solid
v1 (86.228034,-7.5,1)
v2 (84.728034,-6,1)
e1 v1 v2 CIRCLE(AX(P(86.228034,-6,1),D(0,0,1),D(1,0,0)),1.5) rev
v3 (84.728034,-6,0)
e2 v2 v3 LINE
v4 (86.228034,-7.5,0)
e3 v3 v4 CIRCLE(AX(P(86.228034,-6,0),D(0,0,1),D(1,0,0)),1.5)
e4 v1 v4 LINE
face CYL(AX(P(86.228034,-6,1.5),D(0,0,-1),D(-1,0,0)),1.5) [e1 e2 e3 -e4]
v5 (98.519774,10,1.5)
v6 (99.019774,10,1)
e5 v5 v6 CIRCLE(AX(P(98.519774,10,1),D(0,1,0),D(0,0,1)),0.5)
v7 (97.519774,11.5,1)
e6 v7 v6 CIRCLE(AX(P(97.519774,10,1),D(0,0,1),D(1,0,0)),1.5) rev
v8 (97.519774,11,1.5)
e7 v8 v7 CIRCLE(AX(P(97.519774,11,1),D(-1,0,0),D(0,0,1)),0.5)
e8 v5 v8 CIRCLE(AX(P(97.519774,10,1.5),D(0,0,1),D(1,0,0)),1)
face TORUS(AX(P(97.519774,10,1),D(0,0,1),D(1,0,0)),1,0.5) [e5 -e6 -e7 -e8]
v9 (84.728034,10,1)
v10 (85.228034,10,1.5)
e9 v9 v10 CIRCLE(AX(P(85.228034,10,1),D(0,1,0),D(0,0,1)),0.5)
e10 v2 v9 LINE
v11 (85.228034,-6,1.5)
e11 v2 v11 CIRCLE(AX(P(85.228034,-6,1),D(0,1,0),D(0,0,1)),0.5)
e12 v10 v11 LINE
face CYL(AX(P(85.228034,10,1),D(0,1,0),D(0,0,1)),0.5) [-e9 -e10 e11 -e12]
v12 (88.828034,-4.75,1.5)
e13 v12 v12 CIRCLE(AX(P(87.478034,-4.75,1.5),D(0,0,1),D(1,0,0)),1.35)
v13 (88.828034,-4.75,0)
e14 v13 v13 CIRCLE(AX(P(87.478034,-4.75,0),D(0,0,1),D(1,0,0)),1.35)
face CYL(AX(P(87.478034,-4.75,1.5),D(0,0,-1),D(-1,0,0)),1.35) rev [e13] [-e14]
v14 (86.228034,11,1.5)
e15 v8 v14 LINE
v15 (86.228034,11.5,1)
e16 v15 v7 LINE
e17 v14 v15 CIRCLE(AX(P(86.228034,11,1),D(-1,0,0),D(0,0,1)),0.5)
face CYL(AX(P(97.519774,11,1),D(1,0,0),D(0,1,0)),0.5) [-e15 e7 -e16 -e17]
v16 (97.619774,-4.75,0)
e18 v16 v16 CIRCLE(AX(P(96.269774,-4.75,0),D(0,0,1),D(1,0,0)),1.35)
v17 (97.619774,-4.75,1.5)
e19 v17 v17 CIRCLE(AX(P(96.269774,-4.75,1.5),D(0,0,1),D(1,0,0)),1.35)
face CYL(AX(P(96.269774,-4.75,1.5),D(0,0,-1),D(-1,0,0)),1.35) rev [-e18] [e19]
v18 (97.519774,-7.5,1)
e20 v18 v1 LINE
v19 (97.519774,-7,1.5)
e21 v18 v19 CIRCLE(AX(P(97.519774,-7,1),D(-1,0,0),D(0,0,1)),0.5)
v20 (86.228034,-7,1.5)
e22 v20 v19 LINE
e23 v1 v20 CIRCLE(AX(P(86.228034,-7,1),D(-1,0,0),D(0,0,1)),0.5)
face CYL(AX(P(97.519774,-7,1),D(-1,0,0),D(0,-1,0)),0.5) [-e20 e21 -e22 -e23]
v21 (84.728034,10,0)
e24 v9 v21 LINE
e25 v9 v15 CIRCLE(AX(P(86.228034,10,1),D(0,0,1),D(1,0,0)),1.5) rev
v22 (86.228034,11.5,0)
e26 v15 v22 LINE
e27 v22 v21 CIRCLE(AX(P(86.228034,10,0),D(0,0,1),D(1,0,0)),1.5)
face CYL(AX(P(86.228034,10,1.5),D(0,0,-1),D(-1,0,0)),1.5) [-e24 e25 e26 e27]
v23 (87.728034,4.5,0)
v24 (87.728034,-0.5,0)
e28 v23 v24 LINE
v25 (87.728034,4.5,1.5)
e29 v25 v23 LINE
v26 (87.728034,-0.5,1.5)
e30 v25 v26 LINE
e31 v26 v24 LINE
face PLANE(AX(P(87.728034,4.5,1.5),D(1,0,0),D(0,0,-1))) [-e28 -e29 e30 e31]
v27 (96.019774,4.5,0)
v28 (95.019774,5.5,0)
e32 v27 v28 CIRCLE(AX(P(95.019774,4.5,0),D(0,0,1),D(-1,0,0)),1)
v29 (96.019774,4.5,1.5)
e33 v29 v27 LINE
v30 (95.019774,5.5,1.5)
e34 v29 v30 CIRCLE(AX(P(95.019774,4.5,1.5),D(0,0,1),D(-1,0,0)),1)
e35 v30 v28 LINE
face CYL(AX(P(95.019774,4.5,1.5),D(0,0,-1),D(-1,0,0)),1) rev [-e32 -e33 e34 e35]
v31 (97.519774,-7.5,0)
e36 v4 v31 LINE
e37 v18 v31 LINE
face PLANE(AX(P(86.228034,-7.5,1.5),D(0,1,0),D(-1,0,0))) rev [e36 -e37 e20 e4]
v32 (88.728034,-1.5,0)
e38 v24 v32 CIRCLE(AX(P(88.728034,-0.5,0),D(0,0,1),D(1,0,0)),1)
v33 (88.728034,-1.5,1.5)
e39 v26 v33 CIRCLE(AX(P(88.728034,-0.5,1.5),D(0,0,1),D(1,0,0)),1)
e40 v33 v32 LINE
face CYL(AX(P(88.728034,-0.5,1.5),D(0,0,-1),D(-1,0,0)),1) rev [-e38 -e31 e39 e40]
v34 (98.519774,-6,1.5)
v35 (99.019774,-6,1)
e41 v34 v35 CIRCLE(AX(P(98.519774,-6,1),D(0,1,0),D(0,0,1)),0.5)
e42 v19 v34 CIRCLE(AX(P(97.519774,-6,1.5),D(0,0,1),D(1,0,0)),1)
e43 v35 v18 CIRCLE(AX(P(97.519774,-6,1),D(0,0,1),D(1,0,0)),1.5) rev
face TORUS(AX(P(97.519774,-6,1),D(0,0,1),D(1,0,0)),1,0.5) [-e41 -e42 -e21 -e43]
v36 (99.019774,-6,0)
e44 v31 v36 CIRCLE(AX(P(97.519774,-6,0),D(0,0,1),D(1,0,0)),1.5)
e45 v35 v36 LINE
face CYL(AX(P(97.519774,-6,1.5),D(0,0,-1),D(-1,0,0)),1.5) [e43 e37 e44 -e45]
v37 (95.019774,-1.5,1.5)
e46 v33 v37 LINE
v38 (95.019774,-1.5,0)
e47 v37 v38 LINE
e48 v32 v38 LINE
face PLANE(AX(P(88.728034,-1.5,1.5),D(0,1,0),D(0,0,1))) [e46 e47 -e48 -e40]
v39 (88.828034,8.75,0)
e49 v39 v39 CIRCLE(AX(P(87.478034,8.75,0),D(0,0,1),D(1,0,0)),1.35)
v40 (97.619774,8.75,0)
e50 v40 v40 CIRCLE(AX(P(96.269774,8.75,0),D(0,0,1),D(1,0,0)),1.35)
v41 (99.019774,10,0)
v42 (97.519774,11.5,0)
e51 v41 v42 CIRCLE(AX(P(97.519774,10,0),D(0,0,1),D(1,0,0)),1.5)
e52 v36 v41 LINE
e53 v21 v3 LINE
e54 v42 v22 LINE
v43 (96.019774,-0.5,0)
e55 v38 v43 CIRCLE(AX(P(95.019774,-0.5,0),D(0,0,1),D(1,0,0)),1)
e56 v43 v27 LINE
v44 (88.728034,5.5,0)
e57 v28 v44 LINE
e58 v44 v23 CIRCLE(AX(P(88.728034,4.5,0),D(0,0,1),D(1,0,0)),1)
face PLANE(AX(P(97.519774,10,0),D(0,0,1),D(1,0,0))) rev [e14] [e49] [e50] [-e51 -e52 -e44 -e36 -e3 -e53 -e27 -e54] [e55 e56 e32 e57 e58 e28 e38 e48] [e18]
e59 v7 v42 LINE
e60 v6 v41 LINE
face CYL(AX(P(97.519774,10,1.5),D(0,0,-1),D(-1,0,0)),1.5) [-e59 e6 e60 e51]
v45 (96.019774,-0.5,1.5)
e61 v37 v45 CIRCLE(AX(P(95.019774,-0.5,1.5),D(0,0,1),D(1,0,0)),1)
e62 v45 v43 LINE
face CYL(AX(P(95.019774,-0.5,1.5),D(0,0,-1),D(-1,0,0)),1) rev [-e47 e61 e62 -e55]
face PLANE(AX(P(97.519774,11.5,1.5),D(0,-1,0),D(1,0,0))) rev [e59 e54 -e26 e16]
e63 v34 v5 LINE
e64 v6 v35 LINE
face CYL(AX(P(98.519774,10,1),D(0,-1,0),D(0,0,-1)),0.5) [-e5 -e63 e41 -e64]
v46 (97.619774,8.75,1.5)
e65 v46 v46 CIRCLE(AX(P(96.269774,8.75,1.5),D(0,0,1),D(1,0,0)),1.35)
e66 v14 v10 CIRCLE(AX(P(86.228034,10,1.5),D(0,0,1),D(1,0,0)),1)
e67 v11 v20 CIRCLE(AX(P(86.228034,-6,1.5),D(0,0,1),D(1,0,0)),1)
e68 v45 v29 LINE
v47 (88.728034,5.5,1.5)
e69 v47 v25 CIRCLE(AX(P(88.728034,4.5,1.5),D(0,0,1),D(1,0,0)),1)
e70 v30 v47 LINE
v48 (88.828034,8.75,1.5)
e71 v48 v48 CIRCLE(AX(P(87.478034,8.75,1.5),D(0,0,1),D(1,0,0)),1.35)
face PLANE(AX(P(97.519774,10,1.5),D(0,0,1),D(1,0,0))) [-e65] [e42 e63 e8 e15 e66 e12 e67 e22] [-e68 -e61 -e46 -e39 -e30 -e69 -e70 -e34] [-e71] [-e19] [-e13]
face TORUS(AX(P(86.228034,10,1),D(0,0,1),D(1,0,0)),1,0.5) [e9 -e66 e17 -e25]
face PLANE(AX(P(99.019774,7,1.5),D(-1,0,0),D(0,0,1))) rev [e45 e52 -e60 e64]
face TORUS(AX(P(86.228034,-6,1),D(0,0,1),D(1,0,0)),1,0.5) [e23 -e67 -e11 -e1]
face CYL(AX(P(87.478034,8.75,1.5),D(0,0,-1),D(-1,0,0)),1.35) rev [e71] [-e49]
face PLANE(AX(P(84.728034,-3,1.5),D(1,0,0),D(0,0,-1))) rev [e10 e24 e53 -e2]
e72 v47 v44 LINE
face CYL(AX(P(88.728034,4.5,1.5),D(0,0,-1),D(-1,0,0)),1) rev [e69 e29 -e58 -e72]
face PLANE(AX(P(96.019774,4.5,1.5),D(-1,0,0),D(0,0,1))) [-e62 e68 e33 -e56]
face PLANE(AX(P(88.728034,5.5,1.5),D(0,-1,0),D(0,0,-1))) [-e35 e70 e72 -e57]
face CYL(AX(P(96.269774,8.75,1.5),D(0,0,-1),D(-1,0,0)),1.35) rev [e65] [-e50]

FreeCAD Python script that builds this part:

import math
import FreeCAD as App
import Part
import Sketcher
from FreeCAD import Vector
Q = App.Units.Quantity


def edges_at(feature, points):
    """Names of the edges that pass closest to the given points."""
    edges = feature.Shape.Edges
    near = lambda p: min(range(len(edges)), key=lambda i: edges[i].distToShape(Part.Vertex(*p))[0])
    return sorted({f"Edge{near(p) + 1}" for p in points})

doc = App.newDocument("Part")
params = doc.addObject("Spreadsheet::Sheet", "Params")
for row, (alias, value) in enumerate([
    ("sketch1_radius", "1 mm"),
    ("sketch1_diameter", "2.7 mm"),
    ("sketch1_radius2", "1.5 mm"),
    ("sketch1_height", "16 mm"),
    ("sketch1_height2", "5 mm"),
    ("pad1_length", "1.5 mm"),
    ("fillet_radius", "0.5 mm"),
], start=1):
    params.set(f"A{row}", alias)
    params.set(f"B{row}", "=" + value)
    params.setAlias(f"B{row}", alias)

body = doc.addObject("PartDesign::Body", "Body")

sketch1 = doc.addObject("Sketcher::SketchObject", "Sketch")
body.addObject(sketch1)
sketch1.AttachmentSupport = (doc.XY_Plane, [""])
sketch1.MapMode = "FlatFace"
sketch1.addGeometry([
    Part.LineSegment(Vector(97.5, 11.5, 0), Vector(86.2, 11.5, 0)),
    Part.ArcOfCircle(Part.Circle(Vector(86.2, 10, 0), Vector(0, 0, 1), 1.5), math.radians(90), math.radians(180)),
    Part.LineSegment(Vector(84.7, 10, 0), Vector(84.7, -6, 0)),
    Part.ArcOfCircle(Part.Circle(Vector(86.2, -6, 0), Vector(0, 0, 1), 1.5), math.radians(180), math.radians(270)),
    Part.LineSegment(Vector(86.2, -7.5, 0), Vector(97.5, -7.5, 0)),
    Part.ArcOfCircle(Part.Circle(Vector(97.5, -6, 0), Vector(0, 0, 1), 1.5), math.radians(-90), math.radians(0)),
    Part.LineSegment(Vector(99, -6, 0), Vector(99, 10, 0)),
    Part.ArcOfCircle(Part.Circle(Vector(97.5, 10, 0), Vector(0, 0, 1), 1.5), math.radians(0), math.radians(90)),
    Part.Circle(Vector(87.5, -4.8, 0), Vector(0, 0, 1), 1.4),
    Part.Circle(Vector(96.3, -4.8, 0), Vector(0, 0, 1), 1.4),
    Part.ArcOfCircle(Part.Circle(Vector(88.7, 4.5, 0), Vector(0, 0, 1), 1), math.radians(90), math.radians(180)),
    Part.LineSegment(Vector(88.7, 5.5, 0), Vector(95, 5.5, 0)),
    Part.ArcOfCircle(Part.Circle(Vector(95, 4.5, 0), Vector(0, 0, 1), 1), math.radians(0), math.radians(90)),
    Part.LineSegment(Vector(96, 4.5, 0), Vector(96, -0.5, 0)),
    Part.ArcOfCircle(Part.Circle(Vector(95, -0.5, 0), Vector(0, 0, 1), 1), math.radians(-90), math.radians(0)),
    Part.LineSegment(Vector(95, -1.5, 0), Vector(88.7, -1.5, 0)),
    Part.ArcOfCircle(Part.Circle(Vector(88.7, -0.5, 0), Vector(0, 0, 1), 1), math.radians(-180), math.radians(-90)),
    Part.LineSegment(Vector(87.7, -0.5, 0), Vector(87.7, 4.5, 0)),
    Part.Circle(Vector(87.5, 8.8, 0), Vector(0, 0, 1), 1.4),
    Part.Circle(Vector(96.3, 8.8, 0), Vector(0, 0, 1), 1.4),
], False)
sketch1.addConstraint([
    Sketcher.Constraint("Tangent", 0, 2, 1, 1),
    Sketcher.Constraint("Tangent", 1, 2, 2, 1),
    Sketcher.Constraint("Tangent", 2, 2, 3, 1),
    Sketcher.Constraint("Tangent", 3, 2, 4, 1),
    Sketcher.Constraint("Tangent", 4, 2, 5, 1),
    Sketcher.Constraint("Tangent", 5, 2, 6, 1),
    Sketcher.Constraint("Tangent", 6, 2, 7, 1),
    Sketcher.Constraint("Tangent", 7, 2, 0, 1),
    Sketcher.Constraint("Tangent", 10, 1, 11, 1),
    Sketcher.Constraint("Tangent", 11, 2, 12, 2),
    Sketcher.Constraint("Tangent", 12, 1, 13, 1),
    Sketcher.Constraint("Tangent", 13, 2, 14, 2),
    Sketcher.Constraint("Tangent", 14, 1, 15, 1),
    Sketcher.Constraint("Tangent", 15, 2, 16, 2),
    Sketcher.Constraint("Tangent", 16, 1, 17, 1),
    Sketcher.Constraint("Tangent", 17, 2, 10, 2),
    Sketcher.Constraint("Horizontal", 0),
    Sketcher.Constraint("Vertical", 2),
    Sketcher.Constraint("Horizontal", 4),
    Sketcher.Constraint("Vertical", 6),
    Sketcher.Constraint("Horizontal", 11),
    Sketcher.Constraint("Vertical", 13),
    Sketcher.Constraint("Horizontal", 15),
    Sketcher.Constraint("Vertical", 17),
    Sketcher.Constraint("Equal", 1, 3),
    Sketcher.Constraint("Equal", 3, 5),
    Sketcher.Constraint("Equal", 5, 7),
    Sketcher.Constraint("Equal", 8, 9),
    Sketcher.Constraint("Equal", 10, 12),
    Sketcher.Constraint("Equal", 12, 14),
    Sketcher.Constraint("Equal", 14, 16),
    Sketcher.Constraint("Equal", 9, 18),
    Sketcher.Constraint("Equal", 18, 19),
    Sketcher.Constraint("Horizontal", 8, 3, 9, 3),
    Sketcher.Constraint("Horizontal", 18, 3, 19, 3),
    Sketcher.Constraint("Vertical", 8, 3, 18, 3),
    Sketcher.Constraint("Vertical", 9, 3, 19, 3),
    Sketcher.Constraint("Radius", 10, Q("1 mm")),
    Sketcher.Constraint("Diameter", 8, Q("2.7 mm")),
    Sketcher.Constraint("Radius", 1, Q("1.5 mm")),
    Sketcher.Constraint("DistanceY", 2, 2, 2, 1, Q("16 mm")),
    Sketcher.Constraint("DistanceY", 13, 2, 13, 1, Q("5 mm")),
    Sketcher.Constraint("DistanceY", -1, 1, 1, 3, Q("10 mm")),
    Sketcher.Constraint("DistanceY", 10, 3, 0, 2, Q("7 mm")),
    Sketcher.Constraint("DistanceX", 1, 2, 10, 3, Q("4 mm")),
    Sketcher.Constraint("DistanceX", 14, 3, 5, 2, Q("4 mm")),
    Sketcher.Constraint("DistanceY", 8, 3, -1, 1, Q("4.75 mm")),
    Sketcher.Constraint("DistanceY", -1, 1, 18, 3, Q("8.75 mm")),
    Sketcher.Constraint("DistanceX", 3, 3, 8, 3, Q("1.25 mm")),
    Sketcher.Constraint("DistanceX", 9, 3, 5, 3, Q("1.25 mm")),
    Sketcher.Constraint("DistanceX", 0, 2, 0, 1, Q("11.29174 mm")),
    Sketcher.Constraint("DistanceX", -1, 1, 1, 3, Q("86.228034 mm")),
])
sketch1.setExpression("Constraints[37]", "Params.sketch1_radius")
sketch1.setExpression("Constraints[38]", "Params.sketch1_diameter")
sketch1.setExpression("Constraints[39]", "Params.sketch1_radius2")
sketch1.setExpression("Constraints[40]", "Params.sketch1_height")
sketch1.setExpression("Constraints[41]", "Params.sketch1_height2")
pad1 = doc.addObject("PartDesign::Pad", "Pad")
body.addObject(pad1)
pad1.Profile = sketch1
pad1.setExpression("Length", "Params.pad1_length")
doc.recompute()

fillet = doc.addObject("PartDesign::Fillet", "Fillet")
body.addObject(fillet)
fillet.Base = (pad1, edges_at(pad1, [
    (85.167, 11.061, 1.5),
    (84.728, 2, 1.5),
    (85.167, -7.061, 1.5),
    (91.874, -7.5, 1.5),
    (98.58, -7.061, 1.5),
    (99.02, 2, 1.5),
    (98.58, 11.061, 1.5),
    (91.874, 11.5, 1.5),
]))
fillet.setExpression("Radius", "Params.fillet_radius")

doc.recompute()
